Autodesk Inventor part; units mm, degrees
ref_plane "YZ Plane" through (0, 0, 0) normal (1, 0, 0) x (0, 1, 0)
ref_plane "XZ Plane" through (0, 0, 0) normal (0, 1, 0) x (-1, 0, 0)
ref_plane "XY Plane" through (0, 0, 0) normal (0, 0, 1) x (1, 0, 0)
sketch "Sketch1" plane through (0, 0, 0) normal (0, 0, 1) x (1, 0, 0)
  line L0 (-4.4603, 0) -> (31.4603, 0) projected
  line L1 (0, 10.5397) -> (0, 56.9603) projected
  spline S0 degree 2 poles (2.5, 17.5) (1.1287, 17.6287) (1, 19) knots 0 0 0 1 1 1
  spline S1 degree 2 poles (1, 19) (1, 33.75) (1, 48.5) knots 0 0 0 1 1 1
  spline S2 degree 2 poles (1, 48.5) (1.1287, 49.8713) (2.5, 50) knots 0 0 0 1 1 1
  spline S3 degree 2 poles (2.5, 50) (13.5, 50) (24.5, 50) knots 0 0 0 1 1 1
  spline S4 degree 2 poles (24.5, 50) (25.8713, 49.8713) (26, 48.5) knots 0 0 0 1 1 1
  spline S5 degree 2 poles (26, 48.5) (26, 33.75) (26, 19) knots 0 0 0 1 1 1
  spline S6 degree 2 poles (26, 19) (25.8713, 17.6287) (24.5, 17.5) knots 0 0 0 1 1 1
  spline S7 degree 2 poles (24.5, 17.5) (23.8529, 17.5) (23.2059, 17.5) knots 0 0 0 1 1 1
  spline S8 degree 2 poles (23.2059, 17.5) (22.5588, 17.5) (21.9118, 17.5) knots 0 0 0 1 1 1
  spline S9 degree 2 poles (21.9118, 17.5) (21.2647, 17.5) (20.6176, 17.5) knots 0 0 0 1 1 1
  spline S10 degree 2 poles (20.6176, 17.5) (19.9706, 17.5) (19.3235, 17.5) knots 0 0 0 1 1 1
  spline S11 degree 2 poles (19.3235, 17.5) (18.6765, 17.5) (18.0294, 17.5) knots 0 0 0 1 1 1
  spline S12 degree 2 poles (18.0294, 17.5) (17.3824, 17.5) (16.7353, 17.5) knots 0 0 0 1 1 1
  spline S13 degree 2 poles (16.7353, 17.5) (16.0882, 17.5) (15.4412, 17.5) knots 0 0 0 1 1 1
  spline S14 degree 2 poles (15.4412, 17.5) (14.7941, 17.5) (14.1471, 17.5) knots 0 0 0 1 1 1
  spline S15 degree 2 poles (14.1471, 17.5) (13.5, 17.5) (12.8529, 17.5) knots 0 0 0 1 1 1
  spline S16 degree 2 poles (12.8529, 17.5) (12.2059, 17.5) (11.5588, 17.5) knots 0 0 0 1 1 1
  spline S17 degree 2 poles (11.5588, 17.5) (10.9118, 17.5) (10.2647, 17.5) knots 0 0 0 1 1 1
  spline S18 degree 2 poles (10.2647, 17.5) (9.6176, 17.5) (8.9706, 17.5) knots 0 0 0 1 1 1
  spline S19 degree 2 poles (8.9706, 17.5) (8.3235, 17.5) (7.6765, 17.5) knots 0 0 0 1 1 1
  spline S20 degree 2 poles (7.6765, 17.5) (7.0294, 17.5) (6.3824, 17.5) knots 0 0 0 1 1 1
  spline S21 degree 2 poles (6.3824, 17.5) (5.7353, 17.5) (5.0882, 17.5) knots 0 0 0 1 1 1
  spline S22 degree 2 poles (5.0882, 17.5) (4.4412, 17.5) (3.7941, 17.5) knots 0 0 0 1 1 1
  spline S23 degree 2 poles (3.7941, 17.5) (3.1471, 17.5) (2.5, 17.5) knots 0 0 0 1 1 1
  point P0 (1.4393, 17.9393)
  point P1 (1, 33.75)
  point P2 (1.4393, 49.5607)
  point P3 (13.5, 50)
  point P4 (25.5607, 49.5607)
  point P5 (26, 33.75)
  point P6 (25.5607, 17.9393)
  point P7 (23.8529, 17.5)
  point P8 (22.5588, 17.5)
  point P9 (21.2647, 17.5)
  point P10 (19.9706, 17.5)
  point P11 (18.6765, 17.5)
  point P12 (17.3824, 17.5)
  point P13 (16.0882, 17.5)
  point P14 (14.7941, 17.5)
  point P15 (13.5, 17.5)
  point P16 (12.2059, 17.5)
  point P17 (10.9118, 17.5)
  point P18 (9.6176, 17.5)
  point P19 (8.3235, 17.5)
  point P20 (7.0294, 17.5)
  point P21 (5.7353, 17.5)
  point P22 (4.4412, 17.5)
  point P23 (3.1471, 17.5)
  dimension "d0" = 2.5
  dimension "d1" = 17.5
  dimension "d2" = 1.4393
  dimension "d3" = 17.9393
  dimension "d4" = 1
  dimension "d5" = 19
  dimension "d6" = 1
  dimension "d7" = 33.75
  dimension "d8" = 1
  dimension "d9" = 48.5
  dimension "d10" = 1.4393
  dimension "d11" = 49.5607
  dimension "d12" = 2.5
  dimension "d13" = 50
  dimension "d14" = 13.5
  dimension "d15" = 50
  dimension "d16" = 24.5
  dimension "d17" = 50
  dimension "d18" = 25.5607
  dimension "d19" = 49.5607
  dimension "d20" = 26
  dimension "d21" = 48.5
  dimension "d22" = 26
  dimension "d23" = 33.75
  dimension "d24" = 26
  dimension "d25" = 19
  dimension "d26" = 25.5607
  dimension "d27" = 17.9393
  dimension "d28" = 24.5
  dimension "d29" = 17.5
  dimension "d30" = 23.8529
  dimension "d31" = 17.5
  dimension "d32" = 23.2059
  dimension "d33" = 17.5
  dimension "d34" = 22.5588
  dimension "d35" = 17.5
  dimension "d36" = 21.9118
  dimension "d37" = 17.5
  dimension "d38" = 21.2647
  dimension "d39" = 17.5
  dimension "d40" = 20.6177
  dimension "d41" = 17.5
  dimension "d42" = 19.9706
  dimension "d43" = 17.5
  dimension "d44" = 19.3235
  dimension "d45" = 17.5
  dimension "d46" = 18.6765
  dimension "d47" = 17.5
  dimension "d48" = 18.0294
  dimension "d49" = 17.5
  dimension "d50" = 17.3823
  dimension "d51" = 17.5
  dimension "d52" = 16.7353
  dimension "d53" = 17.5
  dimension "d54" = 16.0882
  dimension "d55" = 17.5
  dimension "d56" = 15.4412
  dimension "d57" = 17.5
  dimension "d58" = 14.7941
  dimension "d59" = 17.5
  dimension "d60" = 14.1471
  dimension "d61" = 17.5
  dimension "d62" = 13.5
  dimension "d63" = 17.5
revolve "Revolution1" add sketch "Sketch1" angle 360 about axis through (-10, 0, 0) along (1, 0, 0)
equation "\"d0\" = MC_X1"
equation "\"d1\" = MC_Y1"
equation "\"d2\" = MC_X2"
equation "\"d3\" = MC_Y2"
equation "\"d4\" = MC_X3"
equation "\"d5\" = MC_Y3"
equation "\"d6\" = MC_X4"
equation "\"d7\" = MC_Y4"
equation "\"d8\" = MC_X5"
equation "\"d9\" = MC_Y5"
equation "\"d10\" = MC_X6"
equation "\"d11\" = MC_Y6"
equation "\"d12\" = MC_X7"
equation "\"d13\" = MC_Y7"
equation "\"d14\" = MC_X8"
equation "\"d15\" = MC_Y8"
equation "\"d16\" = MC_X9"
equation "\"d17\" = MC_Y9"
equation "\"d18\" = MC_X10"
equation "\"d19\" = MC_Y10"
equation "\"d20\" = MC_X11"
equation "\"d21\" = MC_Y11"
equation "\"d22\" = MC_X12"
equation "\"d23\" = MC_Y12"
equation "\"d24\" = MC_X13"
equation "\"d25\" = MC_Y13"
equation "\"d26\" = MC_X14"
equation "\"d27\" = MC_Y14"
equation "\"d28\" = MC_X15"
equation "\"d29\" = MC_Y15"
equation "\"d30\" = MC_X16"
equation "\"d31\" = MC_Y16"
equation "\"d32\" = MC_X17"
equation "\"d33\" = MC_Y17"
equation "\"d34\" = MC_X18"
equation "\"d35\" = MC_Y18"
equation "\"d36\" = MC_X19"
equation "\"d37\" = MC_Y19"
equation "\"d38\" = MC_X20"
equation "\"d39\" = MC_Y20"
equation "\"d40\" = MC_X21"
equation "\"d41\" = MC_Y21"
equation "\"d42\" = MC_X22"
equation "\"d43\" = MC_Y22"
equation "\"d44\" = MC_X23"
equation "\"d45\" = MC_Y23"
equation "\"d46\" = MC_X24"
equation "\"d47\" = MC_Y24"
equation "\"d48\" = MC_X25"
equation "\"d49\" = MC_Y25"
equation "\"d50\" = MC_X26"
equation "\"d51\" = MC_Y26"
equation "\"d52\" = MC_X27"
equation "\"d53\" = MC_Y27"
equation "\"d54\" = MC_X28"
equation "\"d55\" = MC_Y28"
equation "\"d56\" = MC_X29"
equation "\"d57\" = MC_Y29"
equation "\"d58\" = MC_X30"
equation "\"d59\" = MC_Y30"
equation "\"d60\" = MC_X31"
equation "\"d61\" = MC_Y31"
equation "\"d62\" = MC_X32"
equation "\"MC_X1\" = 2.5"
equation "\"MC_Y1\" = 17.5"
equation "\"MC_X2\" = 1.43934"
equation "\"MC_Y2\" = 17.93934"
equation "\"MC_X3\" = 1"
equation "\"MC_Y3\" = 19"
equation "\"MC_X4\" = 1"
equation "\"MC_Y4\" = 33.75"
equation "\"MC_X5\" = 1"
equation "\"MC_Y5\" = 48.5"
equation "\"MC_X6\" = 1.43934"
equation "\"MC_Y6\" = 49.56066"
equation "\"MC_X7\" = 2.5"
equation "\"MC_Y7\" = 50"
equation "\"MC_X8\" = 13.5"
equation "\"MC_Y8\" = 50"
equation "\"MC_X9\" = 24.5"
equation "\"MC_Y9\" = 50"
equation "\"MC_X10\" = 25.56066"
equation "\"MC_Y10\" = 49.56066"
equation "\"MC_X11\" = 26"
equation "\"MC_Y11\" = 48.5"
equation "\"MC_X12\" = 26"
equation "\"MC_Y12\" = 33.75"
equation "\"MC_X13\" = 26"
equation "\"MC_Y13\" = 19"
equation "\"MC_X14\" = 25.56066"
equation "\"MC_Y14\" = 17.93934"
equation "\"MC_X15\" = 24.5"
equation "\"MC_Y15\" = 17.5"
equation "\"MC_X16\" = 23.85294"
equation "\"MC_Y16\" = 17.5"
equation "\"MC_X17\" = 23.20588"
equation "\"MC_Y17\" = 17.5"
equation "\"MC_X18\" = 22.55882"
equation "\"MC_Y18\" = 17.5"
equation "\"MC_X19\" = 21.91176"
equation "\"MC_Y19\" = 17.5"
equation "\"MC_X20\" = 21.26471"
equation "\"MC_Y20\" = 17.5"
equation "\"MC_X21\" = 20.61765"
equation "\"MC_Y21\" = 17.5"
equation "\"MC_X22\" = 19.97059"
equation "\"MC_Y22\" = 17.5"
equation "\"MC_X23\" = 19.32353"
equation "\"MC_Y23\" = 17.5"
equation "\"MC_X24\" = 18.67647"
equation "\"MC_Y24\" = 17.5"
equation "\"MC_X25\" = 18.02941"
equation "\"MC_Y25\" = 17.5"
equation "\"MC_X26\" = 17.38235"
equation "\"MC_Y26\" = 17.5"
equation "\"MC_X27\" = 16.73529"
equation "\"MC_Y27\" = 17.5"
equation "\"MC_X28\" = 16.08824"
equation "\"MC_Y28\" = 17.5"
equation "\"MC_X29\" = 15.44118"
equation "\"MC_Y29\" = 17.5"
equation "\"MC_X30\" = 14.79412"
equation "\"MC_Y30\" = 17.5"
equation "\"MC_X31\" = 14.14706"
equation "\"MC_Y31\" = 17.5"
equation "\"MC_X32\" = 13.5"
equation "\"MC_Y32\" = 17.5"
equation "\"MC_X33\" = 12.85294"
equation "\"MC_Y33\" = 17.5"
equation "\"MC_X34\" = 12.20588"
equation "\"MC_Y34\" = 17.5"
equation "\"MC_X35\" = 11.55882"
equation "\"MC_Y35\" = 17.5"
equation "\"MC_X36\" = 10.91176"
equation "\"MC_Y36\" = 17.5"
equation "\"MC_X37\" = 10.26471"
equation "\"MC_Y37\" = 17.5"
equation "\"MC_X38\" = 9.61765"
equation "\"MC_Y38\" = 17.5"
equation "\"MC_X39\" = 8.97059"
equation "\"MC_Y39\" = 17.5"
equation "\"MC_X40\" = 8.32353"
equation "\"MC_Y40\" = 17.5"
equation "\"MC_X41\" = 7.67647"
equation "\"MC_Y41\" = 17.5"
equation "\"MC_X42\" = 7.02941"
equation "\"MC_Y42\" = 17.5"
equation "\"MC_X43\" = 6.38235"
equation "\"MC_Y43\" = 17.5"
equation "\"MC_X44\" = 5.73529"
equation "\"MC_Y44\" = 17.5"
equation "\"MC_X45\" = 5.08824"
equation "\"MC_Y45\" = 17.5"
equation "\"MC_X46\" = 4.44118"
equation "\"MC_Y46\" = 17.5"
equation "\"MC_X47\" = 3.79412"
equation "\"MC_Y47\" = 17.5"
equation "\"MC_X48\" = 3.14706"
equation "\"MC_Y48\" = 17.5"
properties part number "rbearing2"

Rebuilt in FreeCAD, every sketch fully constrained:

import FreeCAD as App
import Part
import Sketcher

doc = App.newDocument("Part")
params = doc.addObject("Spreadsheet::Sheet", "Params")
for row, (alias, value) in enumerate([
    ("revolution_angle", "360 deg"),
], start=1):
    params.set(f"A{row}", alias)
    params.set(f"B{row}", "=" + value)
    params.setAlias(f"B{row}", alias)

body = doc.addObject("PartDesign::Body", "Body")

# Sketch on XY plane
sketch1 = doc.addObject("Sketcher::SketchObject", "Sketch")
body.addObject(sketch1)
sketch1.AttachmentSupport = (doc.XY_Plane, [""])
sketch1.MapMode = "FlatFace"
sketch1.addGeometry(Part.BSplineCurve([App.Vector(2.5, 17.5, 0), App.Vector(1.1287, 17.6287, 0), App.Vector(1, 19, 0)], [3, 3], [0, 1], False, 2, [1, 1, 1], False), False)
sketch1.addGeometry(Part.BSplineCurve([App.Vector(3.7941, 17.5, 0), App.Vector(3.1471, 17.5, 0), App.Vector(2.5, 17.5, 0)], [3, 3], [0, 1], False, 2, [1, 1, 1], False), False)
sketch1.addGeometry(Part.BSplineCurve([App.Vector(5.0882, 17.5, 0), App.Vector(4.4412, 17.5, 0), App.Vector(3.7941, 17.5, 0)], [3, 3], [0, 1], False, 2, [1, 1, 1], False), False)
sketch1.addGeometry(Part.BSplineCurve([App.Vector(6.3824, 17.5, 0), App.Vector(5.7353, 17.5, 0), App.Vector(5.0882, 17.5, 0)], [3, 3], [0, 1], False, 2, [1, 1, 1], False), False)
sketch1.addGeometry(Part.BSplineCurve([App.Vector(7.6765, 17.5, 0), App.Vector(7.0294, 17.5, 0), App.Vector(6.3824, 17.5, 0)], [3, 3], [0, 1], False, 2, [1, 1, 1], False), False)
sketch1.addGeometry(Part.BSplineCurve([App.Vector(8.9706, 17.5, 0), App.Vector(8.3235, 17.5, 0), App.Vector(7.6765, 17.5, 0)], [3, 3], [0, 1], False, 2, [1, 1, 1], False), False)
sketch1.addGeometry(Part.BSplineCurve([App.Vector(10.2647, 17.5, 0), App.Vector(9.6176, 17.5, 0), App.Vector(8.9706, 17.5, 0)], [3, 3], [0, 1], False, 2, [1, 1, 1], False), False)
sketch1.addGeometry(Part.BSplineCurve([App.Vector(11.5588, 17.5, 0), App.Vector(10.9118, 17.5, 0), App.Vector(10.2647, 17.5, 0)], [3, 3], [0, 1], False, 2, [1, 1, 1], False), False)
sketch1.addGeometry(Part.BSplineCurve([App.Vector(12.8529, 17.5, 0), App.Vector(12.2059, 17.5, 0), App.Vector(11.5588, 17.5, 0)], [3, 3], [0, 1], False, 2, [1, 1, 1], False), False)
sketch1.addGeometry(Part.BSplineCurve([App.Vector(14.1471, 17.5, 0), App.Vector(13.5, 17.5, 0), App.Vector(12.8529, 17.5, 0)], [3, 3], [0, 1], False, 2, [1, 1, 1], False), False)
sketch1.addGeometry(Part.BSplineCurve([App.Vector(15.4412, 17.5, 0), App.Vector(14.7941, 17.5, 0), App.Vector(14.1471, 17.5, 0)], [3, 3], [0, 1], False, 2, [1, 1, 1], False), False)
sketch1.addGeometry(Part.BSplineCurve([App.Vector(16.7353, 17.5, 0), App.Vector(16.0882, 17.5, 0), App.Vector(15.4412, 17.5, 0)], [3, 3], [0, 1], False, 2, [1, 1, 1], False), False)
sketch1.addGeometry(Part.BSplineCurve([App.Vector(18.0294, 17.5, 0), App.Vector(17.3824, 17.5, 0), App.Vector(16.7353, 17.5, 0)], [3, 3], [0, 1], False, 2, [1, 1, 1], False), False)
sketch1.addGeometry(Part.BSplineCurve([App.Vector(19.3235, 17.5, 0), App.Vector(18.6765, 17.5, 0), App.Vector(18.0294, 17.5, 0)], [3, 3], [0, 1], False, 2, [1, 1, 1], False), False)
sketch1.addGeometry(Part.BSplineCurve([App.Vector(20.6176, 17.5, 0), App.Vector(19.9706, 17.5, 0), App.Vector(19.3235, 17.5, 0)], [3, 3], [0, 1], False, 2, [1, 1, 1], False), False)
sketch1.addGeometry(Part.BSplineCurve([App.Vector(21.9118, 17.5, 0), App.Vector(21.2647, 17.5, 0), App.Vector(20.6176, 17.5, 0)], [3, 3], [0, 1], False, 2, [1, 1, 1], False), False)
sketch1.addGeometry(Part.BSplineCurve([App.Vector(23.2059, 17.5, 0), App.Vector(22.5588, 17.5, 0), App.Vector(21.9118, 17.5, 0)], [3, 3], [0, 1], False, 2, [1, 1, 1], False), False)
sketch1.addGeometry(Part.BSplineCurve([App.Vector(24.5, 17.5, 0), App.Vector(23.8529, 17.5, 0), App.Vector(23.2059, 17.5, 0)], [3, 3], [0, 1], False, 2, [1, 1, 1], False), False)
sketch1.addGeometry(Part.BSplineCurve([App.Vector(26, 19, 0), App.Vector(25.8713, 17.6287, 0), App.Vector(24.5, 17.5, 0)], [3, 3], [0, 1], False, 2, [1, 1, 1], False), False)
sketch1.addGeometry(Part.BSplineCurve([App.Vector(26, 48.5, 0), App.Vector(26, 33.75, 0), App.Vector(26, 19, 0)], [3, 3], [0, 1], False, 2, [1, 1, 1], False), False)
sketch1.addGeometry(Part.BSplineCurve([App.Vector(24.5, 50, 0), App.Vector(25.8713, 49.8713, 0), App.Vector(26, 48.5, 0)], [3, 3], [0, 1], False, 2, [1, 1, 1], False), False)
sketch1.addGeometry(Part.BSplineCurve([App.Vector(2.5, 50, 0), App.Vector(13.5, 50, 0), App.Vector(24.5, 50, 0)], [3, 3], [0, 1], False, 2, [1, 1, 1], False), False)
sketch1.addGeometry(Part.BSplineCurve([App.Vector(1, 48.5, 0), App.Vector(1.1287, 49.8713, 0), App.Vector(2.5, 50, 0)], [3, 3], [0, 1], False, 2, [1, 1, 1], False), False)
sketch1.addGeometry(Part.BSplineCurve([App.Vector(1, 19, 0), App.Vector(1, 33.75, 0), App.Vector(1, 48.5, 0)], [3, 3], [0, 1], False, 2, [1, 1, 1], False), False)
sketch1.addConstraint(Sketcher.Constraint("Block", 0))
sketch1.addConstraint(Sketcher.Constraint("Block", 1))
sketch1.addConstraint(Sketcher.Constraint("Block", 2))
sketch1.addConstraint(Sketcher.Constraint("Block", 3))
sketch1.addConstraint(Sketcher.Constraint("Block", 4))
sketch1.addConstraint(Sketcher.Constraint("Block", 5))
sketch1.addConstraint(Sketcher.Constraint("Block", 6))
sketch1.addConstraint(Sketcher.Constraint("Block", 7))
sketch1.addConstraint(Sketcher.Constraint("Block", 8))
sketch1.addConstraint(Sketcher.Constraint("Block", 9))
sketch1.addConstraint(Sketcher.Constraint("Block", 10))
sketch1.addConstraint(Sketcher.Constraint("Block", 11))
sketch1.addConstraint(Sketcher.Constraint("Block", 12))
sketch1.addConstraint(Sketcher.Constraint("Block", 13))
sketch1.addConstraint(Sketcher.Constraint("Block", 14))
sketch1.addConstraint(Sketcher.Constraint("Block", 15))
sketch1.addConstraint(Sketcher.Constraint("Block", 16))
sketch1.addConstraint(Sketcher.Constraint("Block", 17))
sketch1.addConstraint(Sketcher.Constraint("Block", 18))
sketch1.addConstraint(Sketcher.Constraint("Block", 19))
sketch1.addConstraint(Sketcher.Constraint("Block", 20))
sketch1.addConstraint(Sketcher.Constraint("Block", 21))
sketch1.addConstraint(Sketcher.Constraint("Block", 22))
sketch1.addConstraint(Sketcher.Constraint("Block", 23))
revolution = doc.addObject("PartDesign::Revolution", "Revolution")
body.addObject(revolution)
revolution.Profile = sketch1
revolution.ReferenceAxis = (sketch1, ["H_Axis"])
revolution.setExpression("Angle", "Params.revolution_angle")

doc.recompute()
